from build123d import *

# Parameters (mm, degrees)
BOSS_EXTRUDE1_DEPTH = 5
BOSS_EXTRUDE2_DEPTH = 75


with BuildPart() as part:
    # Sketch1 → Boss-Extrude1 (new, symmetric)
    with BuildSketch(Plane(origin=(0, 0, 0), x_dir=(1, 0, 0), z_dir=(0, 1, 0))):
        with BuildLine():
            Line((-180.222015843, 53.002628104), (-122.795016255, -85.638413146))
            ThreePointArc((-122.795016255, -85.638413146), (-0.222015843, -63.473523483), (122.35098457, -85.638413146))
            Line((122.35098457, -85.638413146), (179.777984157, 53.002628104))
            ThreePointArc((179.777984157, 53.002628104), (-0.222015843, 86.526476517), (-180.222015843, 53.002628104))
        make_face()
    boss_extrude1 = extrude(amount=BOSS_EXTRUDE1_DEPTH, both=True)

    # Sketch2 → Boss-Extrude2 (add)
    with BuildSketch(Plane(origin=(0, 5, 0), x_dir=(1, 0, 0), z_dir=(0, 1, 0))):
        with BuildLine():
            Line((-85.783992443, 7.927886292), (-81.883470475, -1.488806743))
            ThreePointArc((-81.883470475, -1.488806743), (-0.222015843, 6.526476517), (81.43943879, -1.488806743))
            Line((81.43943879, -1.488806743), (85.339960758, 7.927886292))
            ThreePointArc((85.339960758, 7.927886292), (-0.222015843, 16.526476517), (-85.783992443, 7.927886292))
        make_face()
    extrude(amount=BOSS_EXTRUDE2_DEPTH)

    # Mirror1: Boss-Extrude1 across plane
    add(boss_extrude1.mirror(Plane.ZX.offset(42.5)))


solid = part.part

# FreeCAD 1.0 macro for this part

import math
import FreeCAD as App
import Part
import Sketcher
from FreeCAD import Vector
Q = App.Units.Quantity

doc = App.newDocument("Part")
body = doc.addObject("PartDesign::Body", "Body")

# Sketch on XZ plane
sketch1 = body.newObject("Sketcher::SketchObject", "Sketch")
sketch1.AttachmentSupport = (doc.getObject("XZ_Plane"), [""])
sketch1.MapMode = "FlatFace"
sketch1.addGeometry([
    Part.LineSegment(Vector(-180.222016, -53.002628, 0), Vector(-122.795016, 85.638413, 0)),
    Part.ArcOfCircle(Part.Circle(Vector(-0.222016, 413.473523, 0), Vector(0, 0, 1), 350), math.radians(-110.500073), math.radians(-69.499927)),
    Part.LineSegment(Vector(122.350985, 85.638413, 0), Vector(179.777984, -53.002628, 0)),
    Part.ArcOfCircle(Part.Circle(Vector(-0.222016, 413.473523, 0), Vector(0, 0, 1), 500), math.radians(-111.100196), math.radians(-68.899804)),
], False)
sketch1.addConstraint([
    Sketcher.Constraint("Coincident", 0, 2, 1, 1),
    Sketcher.Constraint("Coincident", 1, 2, 2, 1),
    Sketcher.Constraint("Coincident", 2, 2, 3, 2),
    Sketcher.Constraint("Coincident", 3, 1, 0, 1),
    Sketcher.Constraint("Coincident", 3, 3, 1, 3),
    Sketcher.Constraint("Horizontal", 0, 2, 1, 2),
    Sketcher.Constraint("Horizontal", 2, 2, 3, 1),
    Sketcher.Constraint("Radius", 1, 350.0),
    Sketcher.Constraint("Radius", 3, 500.0),
    Sketcher.Constraint("Angle", 0, Q("67.5 deg")),
    Sketcher.Constraint("DistanceX", 3, 3, 2, 2, 180.0),
    Sketcher.Constraint("DistanceY", 2, 2, -1, 1, 53.002628),
    Sketcher.Constraint("DistanceX", 1, 3, -1, 1, 0.222016),
])
pad1 = body.newObject("PartDesign::Pad", "Pad")
pad1.Profile = sketch1
pad1.Length = 10
pad1.Midplane = True

# Sketch on XZ plane
sketch2 = body.newObject("Sketcher::SketchObject", "Sketch001")
sketch2.AttachmentSupport = (doc.getObject("XZ_Plane"), [""])
sketch2.MapMode = "FlatFace"
sketch2.AttachmentOffset = App.Placement(Vector(0, 0, -5), App.Rotation())
sketch2.addGeometry([
    Part.LineSegment(Vector(-85.783992, -7.927886, 0), Vector(-81.88347, 1.488807, 0)),
    Part.ArcOfCircle(Part.Circle(Vector(-0.222016, 413.473523, 0), Vector(0, 0, 1), 420), math.radians(-101.211547), math.radians(-78.788453)),
    Part.LineSegment(Vector(81.439439, 1.488807, 0), Vector(85.339961, -7.927886, 0)),
    Part.ArcOfCircle(Part.Circle(Vector(-0.222016, 413.473523, 0), Vector(0, 0, 1), 430), math.radians(-101.477397), math.radians(-78.522603)),
], False)
sketch2.addConstraint([
    Sketcher.Constraint("Coincident", 0, 2, 1, 1),
    Sketcher.Constraint("Coincident", 1, 2, 2, 1),
    Sketcher.Constraint("Coincident", 2, 2, 3, 2),
    Sketcher.Constraint("Coincident", 3, 1, 0, 1),
    Sketcher.Constraint("Coincident", 3, 3, 1, 3),
    Sketcher.Constraint("Horizontal", 0, 2, 1, 2),
    Sketcher.Constraint("Horizontal", 2, 2, 3, 1),
    Sketcher.Constraint("Radius", 1, 420.0),
    Sketcher.Constraint("Radius", 3, 430.0),
    Sketcher.Constraint("Angle", 0, Q("67.5 deg")),
    Sketcher.Constraint("DistanceX", 0, 2, -1, 1, 81.88347),
    Sketcher.Constraint("DistanceX", -1, 1, 2, 2, 85.339961),
    Sketcher.Constraint("DistanceY", -1, 1, 1, 3, 413.473523),
])
pad2 = body.newObject("PartDesign::Pad", "Pad001")
pad2.Profile = sketch2
pad2.Length = 75
pad2.Reversed = True
doc.recompute()

datumplane = body.newObject("PartDesign::Plane", "DatumPlane")
datumplane.AttachmentSupport = (doc.getObject("XZ_Plane"), [""])
datumplane.MapMode = "FlatFace"
datumplane.AttachmentOffset = App.Placement(Vector(0, 0, -42.5), App.Rotation())
mirrored = body.newObject("PartDesign::Mirrored", "Mirrored")
mirrored.Originals = [pad1]
mirrored.MirrorPlane = (datumplane, [""])
body.Tip = mirrored

doc.recompute()
